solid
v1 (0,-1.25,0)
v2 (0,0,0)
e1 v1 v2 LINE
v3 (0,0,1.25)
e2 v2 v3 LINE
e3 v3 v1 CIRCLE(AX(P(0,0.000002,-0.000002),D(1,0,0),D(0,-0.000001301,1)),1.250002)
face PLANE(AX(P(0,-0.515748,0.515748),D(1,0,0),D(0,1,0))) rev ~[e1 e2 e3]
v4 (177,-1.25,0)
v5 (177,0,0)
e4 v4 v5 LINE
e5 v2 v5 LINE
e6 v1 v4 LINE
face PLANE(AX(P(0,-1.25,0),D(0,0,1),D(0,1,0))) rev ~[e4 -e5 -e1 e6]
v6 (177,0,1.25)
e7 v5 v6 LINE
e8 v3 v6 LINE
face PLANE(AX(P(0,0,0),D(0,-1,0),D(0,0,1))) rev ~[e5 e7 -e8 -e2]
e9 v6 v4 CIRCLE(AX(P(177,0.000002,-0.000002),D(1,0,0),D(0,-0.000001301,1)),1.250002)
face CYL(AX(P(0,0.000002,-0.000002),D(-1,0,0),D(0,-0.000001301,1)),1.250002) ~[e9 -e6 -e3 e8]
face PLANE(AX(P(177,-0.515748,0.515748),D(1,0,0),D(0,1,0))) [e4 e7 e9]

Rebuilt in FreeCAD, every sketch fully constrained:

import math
import FreeCAD as App
import Part
import Sketcher

doc = App.newDocument("Part")
body = doc.addObject("PartDesign::Body", "Body")

# Sketch on YZ plane
sketch1 = body.newObject("Sketcher::SketchObject", "Sketch")
sketch1.AttachmentSupport = (doc.getObject("YZ_Plane"), [""])
sketch1.MapMode = "FlatFace"
sketch1.addGeometry(Part.LineSegment(App.Vector(0, 0, 0), App.Vector(0, 1.25, 0)), False)
sketch1.addGeometry(Part.ArcOfCircle(Part.Circle(App.Vector(0.000002, -0.000002, 0), App.Vector(0, 0, 1), 1.250002), math.radians(90.000075), math.radians(179.999925)), False)
sketch1.addGeometry(Part.LineSegment(App.Vector(-1.25, 0, 0), App.Vector(0, 0, 0)), False)
sketch1.addConstraint(Sketcher.Constraint("Coincident", 0, 2, 1, 1))
sketch1.addConstraint(Sketcher.Constraint("Coincident", 1, 2, 2, 1))
sketch1.addConstraint(Sketcher.Constraint("Coincident", 2, 2, 0, 1))
sketch1.addConstraint(Sketcher.Constraint("Vertical", 0))
sketch1.addConstraint(Sketcher.Constraint("Horizontal", 2))
sketch1.addConstraint(Sketcher.Constraint("Coincident", 1, 3, -1, 1))
sketch1.addConstraint(Sketcher.Constraint("Coincident", 2, 2, -1, 1))
sketch1.addConstraint(Sketcher.Constraint("Radius", 1, 1.250002))
pad1 = body.newObject("PartDesign::Pad", "Pad")
pad1.Profile = sketch1
pad1.Length = 177

doc.recompute()
